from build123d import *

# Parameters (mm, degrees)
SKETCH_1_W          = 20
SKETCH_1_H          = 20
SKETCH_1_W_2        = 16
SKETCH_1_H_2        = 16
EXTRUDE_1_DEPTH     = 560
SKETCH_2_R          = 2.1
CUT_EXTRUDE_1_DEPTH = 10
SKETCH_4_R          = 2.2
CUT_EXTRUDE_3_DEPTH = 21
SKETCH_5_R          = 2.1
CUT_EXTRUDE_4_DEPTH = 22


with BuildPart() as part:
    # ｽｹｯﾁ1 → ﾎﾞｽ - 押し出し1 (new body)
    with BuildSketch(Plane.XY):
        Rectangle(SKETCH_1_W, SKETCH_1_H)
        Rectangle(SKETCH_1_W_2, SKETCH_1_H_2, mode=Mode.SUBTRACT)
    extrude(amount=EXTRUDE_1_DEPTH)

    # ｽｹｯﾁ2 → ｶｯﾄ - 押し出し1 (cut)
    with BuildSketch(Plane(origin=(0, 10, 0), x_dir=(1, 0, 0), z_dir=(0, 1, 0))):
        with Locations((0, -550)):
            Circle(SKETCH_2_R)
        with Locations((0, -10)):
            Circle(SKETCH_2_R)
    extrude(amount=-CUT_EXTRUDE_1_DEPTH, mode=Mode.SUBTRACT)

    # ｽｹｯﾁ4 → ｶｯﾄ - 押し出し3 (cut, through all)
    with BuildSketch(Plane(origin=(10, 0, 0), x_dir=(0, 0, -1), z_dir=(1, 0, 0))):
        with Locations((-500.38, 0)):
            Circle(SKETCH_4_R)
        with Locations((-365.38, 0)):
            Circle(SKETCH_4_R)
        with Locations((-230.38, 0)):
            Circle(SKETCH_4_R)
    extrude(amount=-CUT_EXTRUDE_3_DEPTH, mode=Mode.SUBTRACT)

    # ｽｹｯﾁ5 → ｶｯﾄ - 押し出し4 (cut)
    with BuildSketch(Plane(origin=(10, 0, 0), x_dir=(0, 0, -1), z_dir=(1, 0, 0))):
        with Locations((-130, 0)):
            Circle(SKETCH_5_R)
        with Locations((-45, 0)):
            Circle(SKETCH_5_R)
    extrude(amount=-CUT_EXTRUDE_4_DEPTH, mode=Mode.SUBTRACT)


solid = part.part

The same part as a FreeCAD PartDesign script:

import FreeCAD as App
import Part
import Sketcher
from FreeCAD import Vector
Q = App.Units.Quantity

doc = App.newDocument("Part")
body = doc.addObject("PartDesign::Body", "Body")

sketch1 = body.newObject("Sketcher::SketchObject", "Sketch")
sketch1.AttachmentSupport = (doc.getObject("XY_Plane"), [""])
sketch1.MapMode = "FlatFace"
sketch1.addGeometry(Part.LineSegment(Vector(-10, 10, 0), Vector(-10, -10, 0)), False)
sketch1.addGeometry(Part.LineSegment(Vector(-10, -10, 0), Vector(10, -10, 0)), False)
sketch1.addGeometry(Part.LineSegment(Vector(10, -10, 0), Vector(10, 10, 0)), False)
sketch1.addGeometry(Part.LineSegment(Vector(10, 10, 0), Vector(-10, 10, 0)), False)
sketch1.addGeometry(Part.LineSegment(Vector(8, -8, 0), Vector(-8, -8, 0)), False)
sketch1.addGeometry(Part.LineSegment(Vector(-8, -8, 0), Vector(-8, 8, 0)), False)
sketch1.addGeometry(Part.LineSegment(Vector(-8, 8, 0), Vector(8, 8, 0)), False)
sketch1.addGeometry(Part.LineSegment(Vector(8, 8, 0), Vector(8, -8, 0)), False)
sketch1.addConstraint(Sketcher.Constraint("Coincident", 0, 2, 1, 1))
sketch1.addConstraint(Sketcher.Constraint("Coincident", 1, 2, 2, 1))
sketch1.addConstraint(Sketcher.Constraint("Coincident", 2, 2, 3, 1))
sketch1.addConstraint(Sketcher.Constraint("Coincident", 3, 2, 0, 1))
sketch1.addConstraint(Sketcher.Constraint("Coincident", 4, 2, 5, 1))
sketch1.addConstraint(Sketcher.Constraint("Coincident", 5, 2, 6, 1))
sketch1.addConstraint(Sketcher.Constraint("Coincident", 6, 2, 7, 1))
sketch1.addConstraint(Sketcher.Constraint("Coincident", 7, 2, 4, 1))
sketch1.addConstraint(Sketcher.Constraint("Vertical", 0))
sketch1.addConstraint(Sketcher.Constraint("Horizontal", 1))
sketch1.addConstraint(Sketcher.Constraint("Vertical", 2))
sketch1.addConstraint(Sketcher.Constraint("Horizontal", 3))
sketch1.addConstraint(Sketcher.Constraint("Horizontal", 4))
sketch1.addConstraint(Sketcher.Constraint("Vertical", 5))
sketch1.addConstraint(Sketcher.Constraint("Horizontal", 6))
sketch1.addConstraint(Sketcher.Constraint("Vertical", 7))
sketch1.addConstraint(Sketcher.Constraint("Symmetric", 0, 2, 2, 2, -1, 1))
sketch1.addConstraint(Sketcher.Constraint("Symmetric", 4, 2, 6, 2, -1, 1))
sketch1.addConstraint(Sketcher.Constraint("Equal", 3, 0))
sketch1.addConstraint(Sketcher.Constraint("Equal", 6, 5))
sketch1.addConstraint(Sketcher.Constraint("DistanceX", 1, 1, 1, 2, Q("20 mm")))
sketch1.addConstraint(Sketcher.Constraint("DistanceX", 4, 2, 4, 1, Q("16 mm")))
pad1 = body.newObject("PartDesign::Pad", "Pad")
pad1.Profile = sketch1
pad1.Length = 560

sketch2 = body.newObject("Sketcher::SketchObject", "Sketch001")
sketch2.AttachmentSupport = (doc.getObject("XZ_Plane"), [""])
sketch2.MapMode = "FlatFace"
sketch2.AttachmentOffset = App.Placement(Vector(0, 0, -10), App.Rotation())
sketch2.addGeometry(Part.Circle(Vector(0, 550, 0), Vector(0, 0, 1), 2.1), False)
sketch2.addGeometry(Part.Circle(Vector(0, 10, 0), Vector(0, 0, 1), 2.1), False)
sketch2.addConstraint(Sketcher.Constraint("Equal", 0, 1))
sketch2.addConstraint(Sketcher.Constraint("PointOnObject", 0, 3, -2))
sketch2.addConstraint(Sketcher.Constraint("PointOnObject", 1, 3, -2))
sketch2.addConstraint(Sketcher.Constraint("Diameter", 0, Q("4.2 mm")))
sketch2.addConstraint(Sketcher.Constraint("DistanceY", -1, 1, 0, 3, Q("550 mm")))
sketch2.addConstraint(Sketcher.Constraint("DistanceY", -1, 1, 1, 3, Q("10 mm")))
pocket1 = body.newObject("PartDesign::Pocket", "Pocket")
pocket1.Profile = sketch2
pocket1.Length = 10
pocket1.Reversed = True

sketch3 = body.newObject("Sketcher::SketchObject", "Sketch002")
sketch3.AttachmentSupport = (doc.getObject("YZ_Plane"), [""])
sketch3.MapMode = "FlatFace"
sketch3.AttachmentOffset = App.Placement(Vector(0, 0, 10), App.Rotation())
sketch3.addGeometry(Part.Circle(Vector(0, 500.4, 0), Vector(0, 0, 1), 2.2), False)
sketch3.addGeometry(Part.Circle(Vector(0, 365.4, 0), Vector(0, 0, 1), 2.2), False)
sketch3.addGeometry(Part.Circle(Vector(0, 230.4, 0), Vector(0, 0, 1), 2.2), False)
sketch3.addConstraint(Sketcher.Constraint("Equal", 0, 1))
sketch3.addConstraint(Sketcher.Constraint("Equal", 1, 2))
sketch3.addConstraint(Sketcher.Constraint("PointOnObject", 0, 3, -2))
sketch3.addConstraint(Sketcher.Constraint("PointOnObject", 1, 3, -2))
sketch3.addConstraint(Sketcher.Constraint("PointOnObject", 2, 3, -2))
sketch3.addConstraint(Sketcher.Constraint("Diameter", 0, Q("4.4 mm")))
sketch3.addConstraint(Sketcher.Constraint("DistanceY", 1, 3, 0, 3, Q("135 mm")))
sketch3.addConstraint(Sketcher.Constraint("DistanceY", 2, 3, 1, 3, Q("135 mm")))
sketch3.addConstraint(Sketcher.Constraint("DistanceY", -1, 1, 0, 3, Q("500.38 mm")))
pocket2 = body.newObject("PartDesign::Pocket", "Pocket001")
pocket2.Profile = sketch3
pocket2.Type = "ThroughAll"

sketch4 = body.newObject("Sketcher::SketchObject", "Sketch003")
sketch4.AttachmentSupport = (doc.getObject("YZ_Plane"), [""])
sketch4.MapMode = "FlatFace"
sketch4.AttachmentOffset = App.Placement(Vector(0, 0, 10), App.Rotation())
sketch4.addGeometry(Part.Circle(Vector(0, 130, 0), Vector(0, 0, 1), 2.1), False)
sketch4.addGeometry(Part.Circle(Vector(0, 45, 0), Vector(0, 0, 1), 2.1), False)
sketch4.addConstraint(Sketcher.Constraint("Equal", 0, 1))
sketch4.addConstraint(Sketcher.Constraint("PointOnObject", 0, 3, -2))
sketch4.addConstraint(Sketcher.Constraint("PointOnObject", 1, 3, -2))
sketch4.addConstraint(Sketcher.Constraint("Diameter", 0, Q("4.2 mm")))
sketch4.addConstraint(Sketcher.Constraint("DistanceY", -1, 1, 0, 3, Q("130 mm")))
sketch4.addConstraint(Sketcher.Constraint("DistanceY", -1, 1, 1, 3, Q("45 mm")))
pocket3 = body.newObject("PartDesign::Pocket", "Pocket002")
pocket3.Profile = sketch4
pocket3.Length = 22

doc.recompute()
